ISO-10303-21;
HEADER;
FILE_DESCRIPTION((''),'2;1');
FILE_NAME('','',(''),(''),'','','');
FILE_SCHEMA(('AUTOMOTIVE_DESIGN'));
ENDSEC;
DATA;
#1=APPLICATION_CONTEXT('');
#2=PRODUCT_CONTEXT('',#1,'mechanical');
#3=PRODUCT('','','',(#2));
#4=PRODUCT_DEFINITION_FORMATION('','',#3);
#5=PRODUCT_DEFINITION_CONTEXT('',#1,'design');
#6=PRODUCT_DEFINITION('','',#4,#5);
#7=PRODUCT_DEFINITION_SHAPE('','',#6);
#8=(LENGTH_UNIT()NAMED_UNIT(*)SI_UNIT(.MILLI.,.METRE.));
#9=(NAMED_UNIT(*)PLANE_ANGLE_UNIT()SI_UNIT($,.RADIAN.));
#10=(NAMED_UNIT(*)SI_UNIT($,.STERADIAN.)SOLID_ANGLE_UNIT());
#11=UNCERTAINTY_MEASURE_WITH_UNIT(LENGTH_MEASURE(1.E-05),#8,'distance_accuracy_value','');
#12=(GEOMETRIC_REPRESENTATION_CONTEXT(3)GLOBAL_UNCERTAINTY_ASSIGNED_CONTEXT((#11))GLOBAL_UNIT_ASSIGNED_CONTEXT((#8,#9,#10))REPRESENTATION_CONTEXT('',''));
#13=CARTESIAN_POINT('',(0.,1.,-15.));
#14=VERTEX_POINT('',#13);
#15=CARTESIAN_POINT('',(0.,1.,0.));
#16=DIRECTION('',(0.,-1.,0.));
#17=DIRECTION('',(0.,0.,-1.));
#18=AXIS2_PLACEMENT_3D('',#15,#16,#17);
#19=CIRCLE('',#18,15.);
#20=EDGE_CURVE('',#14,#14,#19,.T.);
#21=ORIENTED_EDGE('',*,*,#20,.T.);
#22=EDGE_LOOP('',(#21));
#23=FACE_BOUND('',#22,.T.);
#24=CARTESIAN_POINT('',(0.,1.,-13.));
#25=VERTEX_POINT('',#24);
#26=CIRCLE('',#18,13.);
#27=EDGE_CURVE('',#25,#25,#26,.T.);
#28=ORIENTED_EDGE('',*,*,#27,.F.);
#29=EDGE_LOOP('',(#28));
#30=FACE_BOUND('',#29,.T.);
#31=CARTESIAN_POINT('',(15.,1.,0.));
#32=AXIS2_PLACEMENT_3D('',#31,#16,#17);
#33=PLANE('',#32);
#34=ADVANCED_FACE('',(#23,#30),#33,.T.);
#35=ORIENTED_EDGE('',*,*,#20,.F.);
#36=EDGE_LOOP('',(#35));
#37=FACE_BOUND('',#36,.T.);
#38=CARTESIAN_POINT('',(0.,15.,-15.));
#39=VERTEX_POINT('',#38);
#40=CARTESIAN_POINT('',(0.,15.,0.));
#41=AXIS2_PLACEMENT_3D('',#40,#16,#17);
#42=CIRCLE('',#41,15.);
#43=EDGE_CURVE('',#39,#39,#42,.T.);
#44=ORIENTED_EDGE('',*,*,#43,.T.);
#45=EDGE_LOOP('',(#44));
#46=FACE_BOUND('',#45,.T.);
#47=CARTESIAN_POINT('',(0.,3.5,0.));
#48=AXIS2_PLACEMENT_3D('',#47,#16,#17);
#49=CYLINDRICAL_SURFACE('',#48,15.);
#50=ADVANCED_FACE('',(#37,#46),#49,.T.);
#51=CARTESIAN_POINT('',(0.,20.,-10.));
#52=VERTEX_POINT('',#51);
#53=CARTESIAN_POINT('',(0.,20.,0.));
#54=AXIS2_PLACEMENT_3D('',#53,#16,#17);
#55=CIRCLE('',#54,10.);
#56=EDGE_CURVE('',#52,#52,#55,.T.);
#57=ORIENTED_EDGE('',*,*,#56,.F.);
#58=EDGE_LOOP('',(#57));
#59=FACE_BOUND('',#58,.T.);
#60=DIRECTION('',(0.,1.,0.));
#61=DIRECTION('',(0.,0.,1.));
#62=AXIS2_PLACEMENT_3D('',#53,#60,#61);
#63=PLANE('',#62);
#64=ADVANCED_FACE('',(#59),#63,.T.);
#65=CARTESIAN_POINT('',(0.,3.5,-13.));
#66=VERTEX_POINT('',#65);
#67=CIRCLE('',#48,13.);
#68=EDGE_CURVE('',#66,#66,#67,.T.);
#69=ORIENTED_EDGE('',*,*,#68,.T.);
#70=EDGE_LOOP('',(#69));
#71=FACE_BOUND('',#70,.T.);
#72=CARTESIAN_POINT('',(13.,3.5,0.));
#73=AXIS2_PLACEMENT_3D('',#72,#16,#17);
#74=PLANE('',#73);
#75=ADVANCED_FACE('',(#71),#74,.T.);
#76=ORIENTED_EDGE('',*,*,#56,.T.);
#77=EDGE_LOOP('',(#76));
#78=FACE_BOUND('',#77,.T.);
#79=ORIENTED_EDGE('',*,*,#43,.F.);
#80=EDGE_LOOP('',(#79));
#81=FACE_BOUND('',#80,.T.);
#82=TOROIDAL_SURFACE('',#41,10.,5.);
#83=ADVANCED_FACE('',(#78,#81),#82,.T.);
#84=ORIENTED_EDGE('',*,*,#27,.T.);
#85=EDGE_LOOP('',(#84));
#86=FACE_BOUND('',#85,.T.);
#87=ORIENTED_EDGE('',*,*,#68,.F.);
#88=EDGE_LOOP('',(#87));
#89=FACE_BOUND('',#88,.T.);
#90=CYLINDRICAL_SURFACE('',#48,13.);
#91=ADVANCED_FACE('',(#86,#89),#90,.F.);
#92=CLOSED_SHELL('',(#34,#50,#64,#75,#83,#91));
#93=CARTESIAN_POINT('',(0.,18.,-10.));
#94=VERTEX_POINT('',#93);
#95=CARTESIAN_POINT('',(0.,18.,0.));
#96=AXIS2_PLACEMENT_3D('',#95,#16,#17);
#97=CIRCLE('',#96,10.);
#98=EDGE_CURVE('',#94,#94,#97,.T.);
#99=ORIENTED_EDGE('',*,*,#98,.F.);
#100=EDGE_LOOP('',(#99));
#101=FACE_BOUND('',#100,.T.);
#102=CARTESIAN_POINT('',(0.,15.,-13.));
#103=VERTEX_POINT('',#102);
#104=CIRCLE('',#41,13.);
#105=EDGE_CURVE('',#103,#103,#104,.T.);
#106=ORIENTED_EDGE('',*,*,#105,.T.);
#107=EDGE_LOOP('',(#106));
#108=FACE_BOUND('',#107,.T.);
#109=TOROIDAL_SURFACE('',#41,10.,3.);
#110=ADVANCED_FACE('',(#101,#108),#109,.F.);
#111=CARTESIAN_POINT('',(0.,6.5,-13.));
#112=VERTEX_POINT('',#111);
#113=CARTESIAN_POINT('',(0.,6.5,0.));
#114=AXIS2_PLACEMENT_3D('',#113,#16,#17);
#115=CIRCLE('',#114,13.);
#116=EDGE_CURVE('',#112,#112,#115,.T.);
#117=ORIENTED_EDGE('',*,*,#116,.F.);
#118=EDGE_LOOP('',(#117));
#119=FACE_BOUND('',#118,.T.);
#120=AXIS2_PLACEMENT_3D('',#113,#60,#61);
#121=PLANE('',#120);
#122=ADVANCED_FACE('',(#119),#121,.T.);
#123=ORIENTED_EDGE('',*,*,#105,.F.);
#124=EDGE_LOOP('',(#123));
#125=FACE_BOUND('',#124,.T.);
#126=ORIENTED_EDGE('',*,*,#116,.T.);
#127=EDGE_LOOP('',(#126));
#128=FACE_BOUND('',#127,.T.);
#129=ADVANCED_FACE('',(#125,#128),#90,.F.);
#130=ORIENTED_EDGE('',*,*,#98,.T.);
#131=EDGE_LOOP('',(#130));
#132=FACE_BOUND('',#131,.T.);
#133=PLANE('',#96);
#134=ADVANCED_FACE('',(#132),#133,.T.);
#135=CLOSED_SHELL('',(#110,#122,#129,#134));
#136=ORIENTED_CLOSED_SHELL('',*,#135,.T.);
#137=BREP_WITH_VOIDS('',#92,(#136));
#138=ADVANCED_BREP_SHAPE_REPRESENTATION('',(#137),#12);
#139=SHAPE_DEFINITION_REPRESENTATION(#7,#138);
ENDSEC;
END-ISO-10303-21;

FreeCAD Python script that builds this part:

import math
import FreeCAD as App
import Part
import Sketcher

V = App.Vector

doc = App.newDocument("Part")
params = doc.addObject("Spreadsheet::Sheet", "Params")
for row, (alias, value) in enumerate([
    ("sketch1_radius", "3 mm"),
    ("sketch1_radius2", "5 mm"),
    ("sketch1_width", "10 mm"),
    ("sketch1_height", "3 mm"),
    ("sketch1_height2", "14 mm"),
    ("revolution_angle", "360 deg"),
], start=1):
    params.set(f"A{row}", alias)
    params.set(f"B{row}", "=" + value)
    params.setAlias(f"B{row}", alias)

body = doc.addObject("PartDesign::Body", "Body")

sketch1 = body.newObject("Sketcher::SketchObject", "Sketch")
sketch1.AttachmentSupport = (doc.getObject("XY_Plane"), [""])
sketch1.MapMode = "FlatFace"
sketch1.addGeometry([
    Part.LineSegment(V(10, 20, 0), V(0, 20, 0)),
    Part.LineSegment(V(0, 20, 0), V(0, 18, 0)),
    Part.LineSegment(V(0, 18, 0), V(10, 18, 0)),
    Part.ArcOfCircle(Part.Circle(V(10, 15, 0), V(0, 0, 1), 3), math.radians(0), math.radians(90)),
    Part.LineSegment(V(13, 15, 0), V(13, 6.5, 0)),
    Part.LineSegment(V(13, 6.5, 0), V(0, 6.5, 0)),
    Part.LineSegment(V(0, 6.5, 0), V(0, 3.5, 0)),
    Part.LineSegment(V(0, 3.5, 0), V(13, 3.5, 0)),
    Part.LineSegment(V(13, 3.5, 0), V(13, 1, 0)),
    Part.LineSegment(V(13, 1, 0), V(15, 1, 0)),
    Part.LineSegment(V(15, 1, 0), V(15, 15, 0)),
    Part.ArcOfCircle(Part.Circle(V(10, 15, 0), V(0, 0, 1), 5), math.radians(0), math.radians(90)),
], False)
sketch1.addConstraint([
    Sketcher.Constraint("Coincident", 0, 2, 1, 1),
    Sketcher.Constraint("Coincident", 1, 2, 2, 1),
    Sketcher.Constraint("Tangent", 2, 2, 3, 2),
    Sketcher.Constraint("Tangent", 3, 1, 4, 1),
    Sketcher.Constraint("Coincident", 4, 2, 5, 1),
    Sketcher.Constraint("Coincident", 5, 2, 6, 1),
    Sketcher.Constraint("Coincident", 6, 2, 7, 1),
    Sketcher.Constraint("Coincident", 7, 2, 8, 1),
    Sketcher.Constraint("Coincident", 8, 2, 9, 1),
    Sketcher.Constraint("Coincident", 9, 2, 10, 1),
    Sketcher.Constraint("Tangent", 10, 2, 11, 1),
    Sketcher.Constraint("Tangent", 11, 2, 0, 1),
    Sketcher.Constraint("Horizontal", 0),
    Sketcher.Constraint("Vertical", 1),
    Sketcher.Constraint("Horizontal", 2),
    Sketcher.Constraint("Vertical", 4),
    Sketcher.Constraint("Horizontal", 5),
    Sketcher.Constraint("Vertical", 6),
    Sketcher.Constraint("Horizontal", 7),
    Sketcher.Constraint("Vertical", 8),
    Sketcher.Constraint("Horizontal", 9),
    Sketcher.Constraint("Vertical", 10),
    Sketcher.Constraint("Coincident", 11, 3, 3, 3),
    Sketcher.Constraint("PointOnObject", 0, 2, -2),
    Sketcher.Constraint("PointOnObject", 5, 2, -2),
    Sketcher.Constraint("Vertical", 4, 2, 7, 2),
    Sketcher.Constraint("Radius", 3, 3.0),
    Sketcher.Constraint("Radius", 11, 5.0),
    Sketcher.Constraint("DistanceX", 0, 2, 0, 1, 10.0),
    Sketcher.Constraint("DistanceY", 6, 2, 6, 1, 3.0),
    Sketcher.Constraint("DistanceY", 10, 1, 10, 2, 14.0),
    Sketcher.Constraint("DistanceY", 4, 2, 4, 1, 8.5),
    Sketcher.Constraint("DistanceY", -1, 1, 3, 3, 15.0),
])
sketch1.setExpression("Constraints[26]", "Params.sketch1_radius")
sketch1.setExpression("Constraints[27]", "Params.sketch1_radius2")
sketch1.setExpression("Constraints[28]", "Params.sketch1_width")
sketch1.setExpression("Constraints[29]", "Params.sketch1_height")
sketch1.setExpression("Constraints[30]", "Params.sketch1_height2")
revolution = body.newObject("PartDesign::Revolution", "Revolution")
revolution.Profile = sketch1
revolution.ReferenceAxis = (sketch1, ["V_Axis"])
revolution.setExpression("Angle", "Params.revolution_angle")

doc.recompute()
